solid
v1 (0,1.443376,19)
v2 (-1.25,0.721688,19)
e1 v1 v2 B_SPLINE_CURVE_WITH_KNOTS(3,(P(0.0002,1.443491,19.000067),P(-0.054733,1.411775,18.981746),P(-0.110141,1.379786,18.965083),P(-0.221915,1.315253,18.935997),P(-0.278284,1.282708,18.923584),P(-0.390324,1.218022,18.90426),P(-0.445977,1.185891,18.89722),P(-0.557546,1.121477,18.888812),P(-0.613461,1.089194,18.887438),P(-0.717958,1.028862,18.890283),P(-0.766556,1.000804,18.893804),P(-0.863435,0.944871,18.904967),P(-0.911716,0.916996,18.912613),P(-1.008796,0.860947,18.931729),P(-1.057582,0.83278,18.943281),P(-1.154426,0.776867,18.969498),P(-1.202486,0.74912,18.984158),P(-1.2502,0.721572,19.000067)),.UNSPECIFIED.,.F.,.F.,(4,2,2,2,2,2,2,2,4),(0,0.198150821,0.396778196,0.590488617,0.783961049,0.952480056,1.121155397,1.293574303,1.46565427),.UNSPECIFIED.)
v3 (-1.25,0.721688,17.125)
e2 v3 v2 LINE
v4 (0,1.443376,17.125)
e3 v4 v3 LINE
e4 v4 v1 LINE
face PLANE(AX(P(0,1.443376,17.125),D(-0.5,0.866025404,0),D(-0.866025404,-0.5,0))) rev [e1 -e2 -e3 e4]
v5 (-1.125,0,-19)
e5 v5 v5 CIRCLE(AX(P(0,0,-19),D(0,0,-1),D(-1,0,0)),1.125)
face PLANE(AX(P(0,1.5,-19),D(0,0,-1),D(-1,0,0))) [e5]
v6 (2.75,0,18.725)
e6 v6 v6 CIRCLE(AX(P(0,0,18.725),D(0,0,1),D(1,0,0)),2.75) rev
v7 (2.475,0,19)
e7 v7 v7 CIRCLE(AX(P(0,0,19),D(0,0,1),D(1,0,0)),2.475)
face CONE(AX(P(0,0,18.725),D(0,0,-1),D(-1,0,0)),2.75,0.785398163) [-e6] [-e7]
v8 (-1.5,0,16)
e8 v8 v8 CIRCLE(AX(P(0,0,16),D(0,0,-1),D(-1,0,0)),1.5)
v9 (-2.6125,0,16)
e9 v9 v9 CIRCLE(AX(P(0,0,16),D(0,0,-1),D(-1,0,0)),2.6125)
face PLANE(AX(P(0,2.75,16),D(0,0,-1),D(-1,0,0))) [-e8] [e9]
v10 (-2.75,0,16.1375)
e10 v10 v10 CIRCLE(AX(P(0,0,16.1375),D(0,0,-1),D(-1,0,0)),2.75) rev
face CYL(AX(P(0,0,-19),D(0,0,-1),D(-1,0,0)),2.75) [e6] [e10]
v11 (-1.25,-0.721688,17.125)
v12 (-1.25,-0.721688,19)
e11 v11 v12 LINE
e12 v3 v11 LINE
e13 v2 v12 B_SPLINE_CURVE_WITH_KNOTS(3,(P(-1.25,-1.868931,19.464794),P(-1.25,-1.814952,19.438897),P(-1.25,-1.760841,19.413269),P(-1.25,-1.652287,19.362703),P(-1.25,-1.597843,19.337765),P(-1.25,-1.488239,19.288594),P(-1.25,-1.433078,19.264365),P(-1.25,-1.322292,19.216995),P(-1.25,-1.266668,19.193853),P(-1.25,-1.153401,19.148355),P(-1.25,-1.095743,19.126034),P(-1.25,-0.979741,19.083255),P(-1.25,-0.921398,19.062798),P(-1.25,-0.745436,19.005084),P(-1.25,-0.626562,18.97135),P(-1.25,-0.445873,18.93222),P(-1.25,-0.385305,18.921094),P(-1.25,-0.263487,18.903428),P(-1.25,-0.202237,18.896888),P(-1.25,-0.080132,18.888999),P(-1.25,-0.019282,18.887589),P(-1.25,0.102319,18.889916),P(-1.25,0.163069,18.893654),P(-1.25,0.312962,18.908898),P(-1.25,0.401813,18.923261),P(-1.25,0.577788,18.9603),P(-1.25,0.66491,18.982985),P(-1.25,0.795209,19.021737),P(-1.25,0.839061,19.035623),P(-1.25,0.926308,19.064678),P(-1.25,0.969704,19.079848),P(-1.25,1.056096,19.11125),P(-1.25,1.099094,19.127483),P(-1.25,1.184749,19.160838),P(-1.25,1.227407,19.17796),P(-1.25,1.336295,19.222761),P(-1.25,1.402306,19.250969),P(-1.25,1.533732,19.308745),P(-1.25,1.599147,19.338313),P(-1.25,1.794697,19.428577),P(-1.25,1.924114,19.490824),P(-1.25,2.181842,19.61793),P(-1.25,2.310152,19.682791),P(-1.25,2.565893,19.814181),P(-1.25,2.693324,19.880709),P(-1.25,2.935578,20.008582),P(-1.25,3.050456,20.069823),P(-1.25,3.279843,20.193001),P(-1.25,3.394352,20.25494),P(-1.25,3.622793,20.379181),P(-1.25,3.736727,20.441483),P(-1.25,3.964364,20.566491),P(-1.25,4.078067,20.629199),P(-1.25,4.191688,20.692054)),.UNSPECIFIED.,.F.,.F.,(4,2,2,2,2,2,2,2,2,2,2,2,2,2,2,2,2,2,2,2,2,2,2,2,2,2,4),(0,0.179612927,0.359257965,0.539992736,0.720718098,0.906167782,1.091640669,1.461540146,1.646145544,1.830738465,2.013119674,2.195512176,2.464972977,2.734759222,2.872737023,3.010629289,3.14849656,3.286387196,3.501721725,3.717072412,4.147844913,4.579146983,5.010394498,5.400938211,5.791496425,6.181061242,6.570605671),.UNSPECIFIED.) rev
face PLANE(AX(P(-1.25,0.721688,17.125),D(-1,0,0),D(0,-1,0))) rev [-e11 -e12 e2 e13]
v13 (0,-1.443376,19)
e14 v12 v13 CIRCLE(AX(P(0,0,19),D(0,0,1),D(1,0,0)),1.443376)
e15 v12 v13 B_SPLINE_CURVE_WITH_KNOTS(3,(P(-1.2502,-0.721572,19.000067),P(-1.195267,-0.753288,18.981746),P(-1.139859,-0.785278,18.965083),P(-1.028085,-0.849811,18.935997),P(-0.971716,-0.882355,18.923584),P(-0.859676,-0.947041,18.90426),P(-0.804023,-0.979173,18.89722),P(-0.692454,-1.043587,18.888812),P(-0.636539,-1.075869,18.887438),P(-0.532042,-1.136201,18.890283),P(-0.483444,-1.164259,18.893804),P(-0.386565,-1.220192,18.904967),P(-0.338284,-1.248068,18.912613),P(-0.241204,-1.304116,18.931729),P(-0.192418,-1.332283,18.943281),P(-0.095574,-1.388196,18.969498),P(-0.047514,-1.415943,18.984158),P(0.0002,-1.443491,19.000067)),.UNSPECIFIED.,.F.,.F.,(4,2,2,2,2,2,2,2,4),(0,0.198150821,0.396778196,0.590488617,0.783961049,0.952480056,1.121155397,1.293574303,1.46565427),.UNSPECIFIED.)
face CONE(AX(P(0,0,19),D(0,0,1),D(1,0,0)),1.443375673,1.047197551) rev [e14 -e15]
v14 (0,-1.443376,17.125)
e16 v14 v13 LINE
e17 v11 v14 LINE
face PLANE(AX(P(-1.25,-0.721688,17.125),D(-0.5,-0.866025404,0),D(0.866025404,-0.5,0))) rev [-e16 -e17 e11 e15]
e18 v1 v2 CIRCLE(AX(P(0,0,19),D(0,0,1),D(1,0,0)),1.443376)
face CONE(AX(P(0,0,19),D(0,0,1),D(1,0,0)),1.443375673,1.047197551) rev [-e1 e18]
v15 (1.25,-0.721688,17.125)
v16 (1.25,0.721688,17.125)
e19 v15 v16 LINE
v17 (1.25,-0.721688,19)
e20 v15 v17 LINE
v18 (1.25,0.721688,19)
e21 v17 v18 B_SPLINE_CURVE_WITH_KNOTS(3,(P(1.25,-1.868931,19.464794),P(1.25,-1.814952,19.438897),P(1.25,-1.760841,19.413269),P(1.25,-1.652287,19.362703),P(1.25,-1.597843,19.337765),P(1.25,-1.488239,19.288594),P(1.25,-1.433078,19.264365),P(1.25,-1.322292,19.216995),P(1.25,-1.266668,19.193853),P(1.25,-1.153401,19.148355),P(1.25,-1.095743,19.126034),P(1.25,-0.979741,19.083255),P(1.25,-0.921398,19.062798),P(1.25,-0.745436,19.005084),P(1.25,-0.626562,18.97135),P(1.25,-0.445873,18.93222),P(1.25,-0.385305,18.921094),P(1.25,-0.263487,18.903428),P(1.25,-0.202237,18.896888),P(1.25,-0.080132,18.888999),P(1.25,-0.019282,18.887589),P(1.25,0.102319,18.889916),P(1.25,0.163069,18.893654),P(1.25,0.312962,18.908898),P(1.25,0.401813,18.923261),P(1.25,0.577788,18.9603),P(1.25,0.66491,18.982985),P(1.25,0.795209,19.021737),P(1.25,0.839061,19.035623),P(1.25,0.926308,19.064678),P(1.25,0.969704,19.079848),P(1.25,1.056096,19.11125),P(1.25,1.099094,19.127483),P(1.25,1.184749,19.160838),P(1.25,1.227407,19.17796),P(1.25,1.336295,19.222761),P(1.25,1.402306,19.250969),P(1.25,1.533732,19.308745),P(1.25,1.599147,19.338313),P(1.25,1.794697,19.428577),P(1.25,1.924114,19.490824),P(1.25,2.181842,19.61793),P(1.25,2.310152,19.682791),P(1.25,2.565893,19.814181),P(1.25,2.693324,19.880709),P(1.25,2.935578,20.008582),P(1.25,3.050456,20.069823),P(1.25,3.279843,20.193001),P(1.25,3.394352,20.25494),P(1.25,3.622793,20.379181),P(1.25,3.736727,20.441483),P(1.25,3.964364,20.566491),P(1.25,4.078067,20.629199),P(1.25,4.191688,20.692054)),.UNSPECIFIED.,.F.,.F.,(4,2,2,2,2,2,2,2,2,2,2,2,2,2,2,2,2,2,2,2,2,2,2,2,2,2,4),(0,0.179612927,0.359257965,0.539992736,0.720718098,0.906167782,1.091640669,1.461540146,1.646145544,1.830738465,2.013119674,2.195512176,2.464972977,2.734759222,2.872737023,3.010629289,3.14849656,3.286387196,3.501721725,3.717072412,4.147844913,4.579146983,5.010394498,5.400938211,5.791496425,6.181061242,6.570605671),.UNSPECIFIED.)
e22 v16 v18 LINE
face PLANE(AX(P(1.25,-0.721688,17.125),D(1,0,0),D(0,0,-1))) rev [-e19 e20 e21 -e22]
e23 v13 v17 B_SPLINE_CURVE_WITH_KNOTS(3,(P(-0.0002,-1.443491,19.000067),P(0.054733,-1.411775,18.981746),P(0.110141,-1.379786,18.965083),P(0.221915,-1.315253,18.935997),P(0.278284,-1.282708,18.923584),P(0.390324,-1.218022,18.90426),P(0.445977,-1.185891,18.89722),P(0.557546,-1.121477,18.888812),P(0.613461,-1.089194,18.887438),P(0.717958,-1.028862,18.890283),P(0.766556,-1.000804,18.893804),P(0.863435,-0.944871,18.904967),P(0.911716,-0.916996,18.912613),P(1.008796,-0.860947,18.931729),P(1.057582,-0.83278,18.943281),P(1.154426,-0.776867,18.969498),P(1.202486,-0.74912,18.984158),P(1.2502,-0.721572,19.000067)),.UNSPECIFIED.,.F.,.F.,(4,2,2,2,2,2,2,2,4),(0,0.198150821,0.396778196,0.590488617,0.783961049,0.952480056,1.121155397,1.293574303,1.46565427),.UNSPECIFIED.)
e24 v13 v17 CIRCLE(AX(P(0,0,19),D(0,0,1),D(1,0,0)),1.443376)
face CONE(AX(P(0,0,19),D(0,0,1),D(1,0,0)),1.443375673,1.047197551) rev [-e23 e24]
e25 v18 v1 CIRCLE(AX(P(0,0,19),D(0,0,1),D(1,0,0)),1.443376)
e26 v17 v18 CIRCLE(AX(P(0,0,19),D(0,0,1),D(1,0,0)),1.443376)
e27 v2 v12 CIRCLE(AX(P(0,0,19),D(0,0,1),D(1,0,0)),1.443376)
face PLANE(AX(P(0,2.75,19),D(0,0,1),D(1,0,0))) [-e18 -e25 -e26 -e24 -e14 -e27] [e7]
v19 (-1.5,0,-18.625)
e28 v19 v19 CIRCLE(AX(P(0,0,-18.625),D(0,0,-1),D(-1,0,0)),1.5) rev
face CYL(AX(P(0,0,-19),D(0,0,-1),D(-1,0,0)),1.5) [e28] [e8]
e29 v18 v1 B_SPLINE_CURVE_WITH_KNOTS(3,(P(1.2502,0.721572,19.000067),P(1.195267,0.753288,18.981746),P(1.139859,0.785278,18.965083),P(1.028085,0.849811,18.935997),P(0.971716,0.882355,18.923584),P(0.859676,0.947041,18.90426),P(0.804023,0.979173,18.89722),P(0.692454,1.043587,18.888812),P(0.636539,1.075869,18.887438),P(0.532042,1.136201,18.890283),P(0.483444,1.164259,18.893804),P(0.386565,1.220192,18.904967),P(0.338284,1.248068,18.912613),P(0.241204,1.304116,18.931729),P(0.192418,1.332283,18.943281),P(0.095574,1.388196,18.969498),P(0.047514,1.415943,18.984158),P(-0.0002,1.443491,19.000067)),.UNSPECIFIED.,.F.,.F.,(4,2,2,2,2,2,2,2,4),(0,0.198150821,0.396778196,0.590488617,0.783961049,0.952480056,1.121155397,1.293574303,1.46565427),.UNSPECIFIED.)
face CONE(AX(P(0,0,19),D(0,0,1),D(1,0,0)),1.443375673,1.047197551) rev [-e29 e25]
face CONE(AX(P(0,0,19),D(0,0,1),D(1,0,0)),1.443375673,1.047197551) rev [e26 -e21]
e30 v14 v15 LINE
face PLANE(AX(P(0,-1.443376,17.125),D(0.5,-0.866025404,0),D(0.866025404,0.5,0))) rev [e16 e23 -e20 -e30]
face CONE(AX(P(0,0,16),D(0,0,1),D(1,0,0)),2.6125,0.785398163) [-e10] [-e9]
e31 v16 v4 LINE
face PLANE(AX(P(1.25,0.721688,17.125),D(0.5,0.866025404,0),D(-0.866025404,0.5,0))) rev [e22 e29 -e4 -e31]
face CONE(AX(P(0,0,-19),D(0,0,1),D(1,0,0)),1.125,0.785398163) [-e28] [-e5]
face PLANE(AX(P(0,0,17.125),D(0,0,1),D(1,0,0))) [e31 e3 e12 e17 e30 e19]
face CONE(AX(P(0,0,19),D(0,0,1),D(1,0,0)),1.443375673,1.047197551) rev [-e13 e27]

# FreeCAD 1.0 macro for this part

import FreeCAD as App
import Part
import Sketcher
Q = App.Units.Quantity


def edges_at(feature, points):
    """Names of the edges that pass closest to the given points."""
    edges = feature.Shape.Edges
    near = lambda p: min(range(len(edges)), key=lambda i: edges[i].distToShape(Part.Vertex(*p))[0])
    return sorted({f"Edge{near(p) + 1}" for p in points})


def add_polygon(sketch, points):
    """Adds a closed chain of lines whose ends are joined by coincident constraints."""
    first, n = sketch.GeometryCount, len(points)
    for a, b in zip(points, points[1:] + points[:1]):
        sketch.addGeometry(Part.LineSegment(App.Vector(*a, 0), App.Vector(*b, 0)), False)
    for i in range(n):
        sketch.addConstraint(Sketcher.Constraint("Coincident", first + i, 2, first + (i + 1) % n, 1))

doc = App.newDocument("Part")
body = doc.addObject("PartDesign::Body", "Body")

# Sketch on YZ plane
sketch1 = body.newObject("Sketcher::SketchObject", "Sketch")
sketch1.AttachmentSupport = (doc.getObject("YZ_Plane"), [""])
sketch1.MapMode = "FlatFace"
add_polygon(sketch1, [(2.75, 16), (2.75, 19), (0, 19), (0, -19), (1.5, -19), (1.5, 16)])  # lines 0-5
sketch1.addConstraint([
    Sketcher.Constraint("Vertical", 0),
    Sketcher.Constraint("Horizontal", 1),
    Sketcher.Constraint("Vertical", 2),
    Sketcher.Constraint("Horizontal", 3),
    Sketcher.Constraint("Vertical", 4),
    Sketcher.Constraint("Horizontal", 5),
    Sketcher.Constraint("Symmetric", 1, 2, 2, 2, -1, 1),
    Sketcher.Constraint("DistanceY", 0, 1, 0, 2, Q("3 mm")),
    Sketcher.Constraint("DistanceY", 2, 2, 2, 1, Q("38 mm")),
    Sketcher.Constraint("DistanceX", 3, 1, 3, 2, Q("1.5 mm")),
    Sketcher.Constraint("DistanceX", 1, 2, 1, 1, Q("2.75 mm")),
])
revolution = body.newObject("PartDesign::Revolution", "Revolution")
revolution.Profile = sketch1
revolution.ReferenceAxis = (sketch1, ["V_Axis"])
revolution.Angle = 360

# Sketch on XY plane
sketch2 = body.newObject("Sketcher::SketchObject", "Sketch001")
sketch2.AttachmentSupport = (doc.getObject("XY_Plane"), [""])
sketch2.MapMode = "FlatFace"
sketch2.AttachmentOffset = App.Placement(App.Vector(0, 0, 19), App.Rotation())
add_polygon(sketch2, [(0, 1.443376), (-1.25, 0.721688), (-1.25, -0.721688), (0, -1.443376), (1.25, -0.721688), (1.25, 0.721688)])  # lines 0-5
sketch2.addConstraint([
    Sketcher.Constraint("Vertical", 1),
    Sketcher.Constraint("Vertical", 4),
    Sketcher.Constraint("Symmetric", 0, 2, 3, 2, -1, 1),
    Sketcher.Constraint("Symmetric", 2, 2, 5, 2, -1, 1),
    Sketcher.Constraint("PointOnObject", 2, 2, -2),
    Sketcher.Constraint("Parallel", 2, 5),
    Sketcher.Constraint("Horizontal", 1, 2, 3, 2),
    Sketcher.Constraint("Angle", 0, Q("-150 deg")),
    Sketcher.Constraint("DistanceX", 1, 2, 3, 2, Q("2.5 mm")),
    Sketcher.Constraint("DistanceY", 1, 2, 1, 1, Q("1.443376 mm")),
])
pocket1 = body.newObject("PartDesign::Pocket", "Pocket")
pocket1.Profile = sketch2
pocket1.Length = 1.875

# Sketch on YZ plane
sketch3 = body.newObject("Sketcher::SketchObject", "Sketch002")
sketch3.AttachmentSupport = (doc.getObject("YZ_Plane"), [""])
sketch3.MapMode = "FlatFace"
add_polygon(sketch3, [(0, 19), (-1.443376, 19), (0, 18.166667)])  # lines 0-2
sketch3.addConstraint([
    Sketcher.Constraint("Horizontal", 0),
    Sketcher.Constraint("Vertical", 2),
    Sketcher.Constraint("PointOnObject", 1, 2, -2),
    Sketcher.Constraint("Angle", 1, Q("-30 deg")),
    Sketcher.Constraint("DistanceY", -1, 1, 0, 2, Q("19 mm")),
    Sketcher.Constraint("DistanceX", 0, 2, 0, 1, Q("1.443376 mm")),
])
groove = body.newObject("PartDesign::Groove", "Groove")
groove.Profile = sketch3
groove.ReferenceAxis = (sketch3, ["V_Axis"])
groove.Angle = 360
doc.recompute()

chamfer = body.newObject("PartDesign::Chamfer", "Chamfer")
chamfer.Base = (groove, edges_at(groove, [(2.75, 0, 19)]))
chamfer.Size = 0.275
doc.recompute()

chamfer2 = body.newObject("PartDesign::Chamfer", "Chamfer001")
chamfer2.Base = (chamfer, edges_at(chamfer, [(2.75, 0, 16)]))
chamfer2.Size = 0.1375
doc.recompute()

chamfer3 = body.newObject("PartDesign::Chamfer", "Chamfer002")
chamfer3.Base = (chamfer2, edges_at(chamfer2, [(1.5, 0, -19)]))
chamfer3.Size = 0.375

doc.recompute()
